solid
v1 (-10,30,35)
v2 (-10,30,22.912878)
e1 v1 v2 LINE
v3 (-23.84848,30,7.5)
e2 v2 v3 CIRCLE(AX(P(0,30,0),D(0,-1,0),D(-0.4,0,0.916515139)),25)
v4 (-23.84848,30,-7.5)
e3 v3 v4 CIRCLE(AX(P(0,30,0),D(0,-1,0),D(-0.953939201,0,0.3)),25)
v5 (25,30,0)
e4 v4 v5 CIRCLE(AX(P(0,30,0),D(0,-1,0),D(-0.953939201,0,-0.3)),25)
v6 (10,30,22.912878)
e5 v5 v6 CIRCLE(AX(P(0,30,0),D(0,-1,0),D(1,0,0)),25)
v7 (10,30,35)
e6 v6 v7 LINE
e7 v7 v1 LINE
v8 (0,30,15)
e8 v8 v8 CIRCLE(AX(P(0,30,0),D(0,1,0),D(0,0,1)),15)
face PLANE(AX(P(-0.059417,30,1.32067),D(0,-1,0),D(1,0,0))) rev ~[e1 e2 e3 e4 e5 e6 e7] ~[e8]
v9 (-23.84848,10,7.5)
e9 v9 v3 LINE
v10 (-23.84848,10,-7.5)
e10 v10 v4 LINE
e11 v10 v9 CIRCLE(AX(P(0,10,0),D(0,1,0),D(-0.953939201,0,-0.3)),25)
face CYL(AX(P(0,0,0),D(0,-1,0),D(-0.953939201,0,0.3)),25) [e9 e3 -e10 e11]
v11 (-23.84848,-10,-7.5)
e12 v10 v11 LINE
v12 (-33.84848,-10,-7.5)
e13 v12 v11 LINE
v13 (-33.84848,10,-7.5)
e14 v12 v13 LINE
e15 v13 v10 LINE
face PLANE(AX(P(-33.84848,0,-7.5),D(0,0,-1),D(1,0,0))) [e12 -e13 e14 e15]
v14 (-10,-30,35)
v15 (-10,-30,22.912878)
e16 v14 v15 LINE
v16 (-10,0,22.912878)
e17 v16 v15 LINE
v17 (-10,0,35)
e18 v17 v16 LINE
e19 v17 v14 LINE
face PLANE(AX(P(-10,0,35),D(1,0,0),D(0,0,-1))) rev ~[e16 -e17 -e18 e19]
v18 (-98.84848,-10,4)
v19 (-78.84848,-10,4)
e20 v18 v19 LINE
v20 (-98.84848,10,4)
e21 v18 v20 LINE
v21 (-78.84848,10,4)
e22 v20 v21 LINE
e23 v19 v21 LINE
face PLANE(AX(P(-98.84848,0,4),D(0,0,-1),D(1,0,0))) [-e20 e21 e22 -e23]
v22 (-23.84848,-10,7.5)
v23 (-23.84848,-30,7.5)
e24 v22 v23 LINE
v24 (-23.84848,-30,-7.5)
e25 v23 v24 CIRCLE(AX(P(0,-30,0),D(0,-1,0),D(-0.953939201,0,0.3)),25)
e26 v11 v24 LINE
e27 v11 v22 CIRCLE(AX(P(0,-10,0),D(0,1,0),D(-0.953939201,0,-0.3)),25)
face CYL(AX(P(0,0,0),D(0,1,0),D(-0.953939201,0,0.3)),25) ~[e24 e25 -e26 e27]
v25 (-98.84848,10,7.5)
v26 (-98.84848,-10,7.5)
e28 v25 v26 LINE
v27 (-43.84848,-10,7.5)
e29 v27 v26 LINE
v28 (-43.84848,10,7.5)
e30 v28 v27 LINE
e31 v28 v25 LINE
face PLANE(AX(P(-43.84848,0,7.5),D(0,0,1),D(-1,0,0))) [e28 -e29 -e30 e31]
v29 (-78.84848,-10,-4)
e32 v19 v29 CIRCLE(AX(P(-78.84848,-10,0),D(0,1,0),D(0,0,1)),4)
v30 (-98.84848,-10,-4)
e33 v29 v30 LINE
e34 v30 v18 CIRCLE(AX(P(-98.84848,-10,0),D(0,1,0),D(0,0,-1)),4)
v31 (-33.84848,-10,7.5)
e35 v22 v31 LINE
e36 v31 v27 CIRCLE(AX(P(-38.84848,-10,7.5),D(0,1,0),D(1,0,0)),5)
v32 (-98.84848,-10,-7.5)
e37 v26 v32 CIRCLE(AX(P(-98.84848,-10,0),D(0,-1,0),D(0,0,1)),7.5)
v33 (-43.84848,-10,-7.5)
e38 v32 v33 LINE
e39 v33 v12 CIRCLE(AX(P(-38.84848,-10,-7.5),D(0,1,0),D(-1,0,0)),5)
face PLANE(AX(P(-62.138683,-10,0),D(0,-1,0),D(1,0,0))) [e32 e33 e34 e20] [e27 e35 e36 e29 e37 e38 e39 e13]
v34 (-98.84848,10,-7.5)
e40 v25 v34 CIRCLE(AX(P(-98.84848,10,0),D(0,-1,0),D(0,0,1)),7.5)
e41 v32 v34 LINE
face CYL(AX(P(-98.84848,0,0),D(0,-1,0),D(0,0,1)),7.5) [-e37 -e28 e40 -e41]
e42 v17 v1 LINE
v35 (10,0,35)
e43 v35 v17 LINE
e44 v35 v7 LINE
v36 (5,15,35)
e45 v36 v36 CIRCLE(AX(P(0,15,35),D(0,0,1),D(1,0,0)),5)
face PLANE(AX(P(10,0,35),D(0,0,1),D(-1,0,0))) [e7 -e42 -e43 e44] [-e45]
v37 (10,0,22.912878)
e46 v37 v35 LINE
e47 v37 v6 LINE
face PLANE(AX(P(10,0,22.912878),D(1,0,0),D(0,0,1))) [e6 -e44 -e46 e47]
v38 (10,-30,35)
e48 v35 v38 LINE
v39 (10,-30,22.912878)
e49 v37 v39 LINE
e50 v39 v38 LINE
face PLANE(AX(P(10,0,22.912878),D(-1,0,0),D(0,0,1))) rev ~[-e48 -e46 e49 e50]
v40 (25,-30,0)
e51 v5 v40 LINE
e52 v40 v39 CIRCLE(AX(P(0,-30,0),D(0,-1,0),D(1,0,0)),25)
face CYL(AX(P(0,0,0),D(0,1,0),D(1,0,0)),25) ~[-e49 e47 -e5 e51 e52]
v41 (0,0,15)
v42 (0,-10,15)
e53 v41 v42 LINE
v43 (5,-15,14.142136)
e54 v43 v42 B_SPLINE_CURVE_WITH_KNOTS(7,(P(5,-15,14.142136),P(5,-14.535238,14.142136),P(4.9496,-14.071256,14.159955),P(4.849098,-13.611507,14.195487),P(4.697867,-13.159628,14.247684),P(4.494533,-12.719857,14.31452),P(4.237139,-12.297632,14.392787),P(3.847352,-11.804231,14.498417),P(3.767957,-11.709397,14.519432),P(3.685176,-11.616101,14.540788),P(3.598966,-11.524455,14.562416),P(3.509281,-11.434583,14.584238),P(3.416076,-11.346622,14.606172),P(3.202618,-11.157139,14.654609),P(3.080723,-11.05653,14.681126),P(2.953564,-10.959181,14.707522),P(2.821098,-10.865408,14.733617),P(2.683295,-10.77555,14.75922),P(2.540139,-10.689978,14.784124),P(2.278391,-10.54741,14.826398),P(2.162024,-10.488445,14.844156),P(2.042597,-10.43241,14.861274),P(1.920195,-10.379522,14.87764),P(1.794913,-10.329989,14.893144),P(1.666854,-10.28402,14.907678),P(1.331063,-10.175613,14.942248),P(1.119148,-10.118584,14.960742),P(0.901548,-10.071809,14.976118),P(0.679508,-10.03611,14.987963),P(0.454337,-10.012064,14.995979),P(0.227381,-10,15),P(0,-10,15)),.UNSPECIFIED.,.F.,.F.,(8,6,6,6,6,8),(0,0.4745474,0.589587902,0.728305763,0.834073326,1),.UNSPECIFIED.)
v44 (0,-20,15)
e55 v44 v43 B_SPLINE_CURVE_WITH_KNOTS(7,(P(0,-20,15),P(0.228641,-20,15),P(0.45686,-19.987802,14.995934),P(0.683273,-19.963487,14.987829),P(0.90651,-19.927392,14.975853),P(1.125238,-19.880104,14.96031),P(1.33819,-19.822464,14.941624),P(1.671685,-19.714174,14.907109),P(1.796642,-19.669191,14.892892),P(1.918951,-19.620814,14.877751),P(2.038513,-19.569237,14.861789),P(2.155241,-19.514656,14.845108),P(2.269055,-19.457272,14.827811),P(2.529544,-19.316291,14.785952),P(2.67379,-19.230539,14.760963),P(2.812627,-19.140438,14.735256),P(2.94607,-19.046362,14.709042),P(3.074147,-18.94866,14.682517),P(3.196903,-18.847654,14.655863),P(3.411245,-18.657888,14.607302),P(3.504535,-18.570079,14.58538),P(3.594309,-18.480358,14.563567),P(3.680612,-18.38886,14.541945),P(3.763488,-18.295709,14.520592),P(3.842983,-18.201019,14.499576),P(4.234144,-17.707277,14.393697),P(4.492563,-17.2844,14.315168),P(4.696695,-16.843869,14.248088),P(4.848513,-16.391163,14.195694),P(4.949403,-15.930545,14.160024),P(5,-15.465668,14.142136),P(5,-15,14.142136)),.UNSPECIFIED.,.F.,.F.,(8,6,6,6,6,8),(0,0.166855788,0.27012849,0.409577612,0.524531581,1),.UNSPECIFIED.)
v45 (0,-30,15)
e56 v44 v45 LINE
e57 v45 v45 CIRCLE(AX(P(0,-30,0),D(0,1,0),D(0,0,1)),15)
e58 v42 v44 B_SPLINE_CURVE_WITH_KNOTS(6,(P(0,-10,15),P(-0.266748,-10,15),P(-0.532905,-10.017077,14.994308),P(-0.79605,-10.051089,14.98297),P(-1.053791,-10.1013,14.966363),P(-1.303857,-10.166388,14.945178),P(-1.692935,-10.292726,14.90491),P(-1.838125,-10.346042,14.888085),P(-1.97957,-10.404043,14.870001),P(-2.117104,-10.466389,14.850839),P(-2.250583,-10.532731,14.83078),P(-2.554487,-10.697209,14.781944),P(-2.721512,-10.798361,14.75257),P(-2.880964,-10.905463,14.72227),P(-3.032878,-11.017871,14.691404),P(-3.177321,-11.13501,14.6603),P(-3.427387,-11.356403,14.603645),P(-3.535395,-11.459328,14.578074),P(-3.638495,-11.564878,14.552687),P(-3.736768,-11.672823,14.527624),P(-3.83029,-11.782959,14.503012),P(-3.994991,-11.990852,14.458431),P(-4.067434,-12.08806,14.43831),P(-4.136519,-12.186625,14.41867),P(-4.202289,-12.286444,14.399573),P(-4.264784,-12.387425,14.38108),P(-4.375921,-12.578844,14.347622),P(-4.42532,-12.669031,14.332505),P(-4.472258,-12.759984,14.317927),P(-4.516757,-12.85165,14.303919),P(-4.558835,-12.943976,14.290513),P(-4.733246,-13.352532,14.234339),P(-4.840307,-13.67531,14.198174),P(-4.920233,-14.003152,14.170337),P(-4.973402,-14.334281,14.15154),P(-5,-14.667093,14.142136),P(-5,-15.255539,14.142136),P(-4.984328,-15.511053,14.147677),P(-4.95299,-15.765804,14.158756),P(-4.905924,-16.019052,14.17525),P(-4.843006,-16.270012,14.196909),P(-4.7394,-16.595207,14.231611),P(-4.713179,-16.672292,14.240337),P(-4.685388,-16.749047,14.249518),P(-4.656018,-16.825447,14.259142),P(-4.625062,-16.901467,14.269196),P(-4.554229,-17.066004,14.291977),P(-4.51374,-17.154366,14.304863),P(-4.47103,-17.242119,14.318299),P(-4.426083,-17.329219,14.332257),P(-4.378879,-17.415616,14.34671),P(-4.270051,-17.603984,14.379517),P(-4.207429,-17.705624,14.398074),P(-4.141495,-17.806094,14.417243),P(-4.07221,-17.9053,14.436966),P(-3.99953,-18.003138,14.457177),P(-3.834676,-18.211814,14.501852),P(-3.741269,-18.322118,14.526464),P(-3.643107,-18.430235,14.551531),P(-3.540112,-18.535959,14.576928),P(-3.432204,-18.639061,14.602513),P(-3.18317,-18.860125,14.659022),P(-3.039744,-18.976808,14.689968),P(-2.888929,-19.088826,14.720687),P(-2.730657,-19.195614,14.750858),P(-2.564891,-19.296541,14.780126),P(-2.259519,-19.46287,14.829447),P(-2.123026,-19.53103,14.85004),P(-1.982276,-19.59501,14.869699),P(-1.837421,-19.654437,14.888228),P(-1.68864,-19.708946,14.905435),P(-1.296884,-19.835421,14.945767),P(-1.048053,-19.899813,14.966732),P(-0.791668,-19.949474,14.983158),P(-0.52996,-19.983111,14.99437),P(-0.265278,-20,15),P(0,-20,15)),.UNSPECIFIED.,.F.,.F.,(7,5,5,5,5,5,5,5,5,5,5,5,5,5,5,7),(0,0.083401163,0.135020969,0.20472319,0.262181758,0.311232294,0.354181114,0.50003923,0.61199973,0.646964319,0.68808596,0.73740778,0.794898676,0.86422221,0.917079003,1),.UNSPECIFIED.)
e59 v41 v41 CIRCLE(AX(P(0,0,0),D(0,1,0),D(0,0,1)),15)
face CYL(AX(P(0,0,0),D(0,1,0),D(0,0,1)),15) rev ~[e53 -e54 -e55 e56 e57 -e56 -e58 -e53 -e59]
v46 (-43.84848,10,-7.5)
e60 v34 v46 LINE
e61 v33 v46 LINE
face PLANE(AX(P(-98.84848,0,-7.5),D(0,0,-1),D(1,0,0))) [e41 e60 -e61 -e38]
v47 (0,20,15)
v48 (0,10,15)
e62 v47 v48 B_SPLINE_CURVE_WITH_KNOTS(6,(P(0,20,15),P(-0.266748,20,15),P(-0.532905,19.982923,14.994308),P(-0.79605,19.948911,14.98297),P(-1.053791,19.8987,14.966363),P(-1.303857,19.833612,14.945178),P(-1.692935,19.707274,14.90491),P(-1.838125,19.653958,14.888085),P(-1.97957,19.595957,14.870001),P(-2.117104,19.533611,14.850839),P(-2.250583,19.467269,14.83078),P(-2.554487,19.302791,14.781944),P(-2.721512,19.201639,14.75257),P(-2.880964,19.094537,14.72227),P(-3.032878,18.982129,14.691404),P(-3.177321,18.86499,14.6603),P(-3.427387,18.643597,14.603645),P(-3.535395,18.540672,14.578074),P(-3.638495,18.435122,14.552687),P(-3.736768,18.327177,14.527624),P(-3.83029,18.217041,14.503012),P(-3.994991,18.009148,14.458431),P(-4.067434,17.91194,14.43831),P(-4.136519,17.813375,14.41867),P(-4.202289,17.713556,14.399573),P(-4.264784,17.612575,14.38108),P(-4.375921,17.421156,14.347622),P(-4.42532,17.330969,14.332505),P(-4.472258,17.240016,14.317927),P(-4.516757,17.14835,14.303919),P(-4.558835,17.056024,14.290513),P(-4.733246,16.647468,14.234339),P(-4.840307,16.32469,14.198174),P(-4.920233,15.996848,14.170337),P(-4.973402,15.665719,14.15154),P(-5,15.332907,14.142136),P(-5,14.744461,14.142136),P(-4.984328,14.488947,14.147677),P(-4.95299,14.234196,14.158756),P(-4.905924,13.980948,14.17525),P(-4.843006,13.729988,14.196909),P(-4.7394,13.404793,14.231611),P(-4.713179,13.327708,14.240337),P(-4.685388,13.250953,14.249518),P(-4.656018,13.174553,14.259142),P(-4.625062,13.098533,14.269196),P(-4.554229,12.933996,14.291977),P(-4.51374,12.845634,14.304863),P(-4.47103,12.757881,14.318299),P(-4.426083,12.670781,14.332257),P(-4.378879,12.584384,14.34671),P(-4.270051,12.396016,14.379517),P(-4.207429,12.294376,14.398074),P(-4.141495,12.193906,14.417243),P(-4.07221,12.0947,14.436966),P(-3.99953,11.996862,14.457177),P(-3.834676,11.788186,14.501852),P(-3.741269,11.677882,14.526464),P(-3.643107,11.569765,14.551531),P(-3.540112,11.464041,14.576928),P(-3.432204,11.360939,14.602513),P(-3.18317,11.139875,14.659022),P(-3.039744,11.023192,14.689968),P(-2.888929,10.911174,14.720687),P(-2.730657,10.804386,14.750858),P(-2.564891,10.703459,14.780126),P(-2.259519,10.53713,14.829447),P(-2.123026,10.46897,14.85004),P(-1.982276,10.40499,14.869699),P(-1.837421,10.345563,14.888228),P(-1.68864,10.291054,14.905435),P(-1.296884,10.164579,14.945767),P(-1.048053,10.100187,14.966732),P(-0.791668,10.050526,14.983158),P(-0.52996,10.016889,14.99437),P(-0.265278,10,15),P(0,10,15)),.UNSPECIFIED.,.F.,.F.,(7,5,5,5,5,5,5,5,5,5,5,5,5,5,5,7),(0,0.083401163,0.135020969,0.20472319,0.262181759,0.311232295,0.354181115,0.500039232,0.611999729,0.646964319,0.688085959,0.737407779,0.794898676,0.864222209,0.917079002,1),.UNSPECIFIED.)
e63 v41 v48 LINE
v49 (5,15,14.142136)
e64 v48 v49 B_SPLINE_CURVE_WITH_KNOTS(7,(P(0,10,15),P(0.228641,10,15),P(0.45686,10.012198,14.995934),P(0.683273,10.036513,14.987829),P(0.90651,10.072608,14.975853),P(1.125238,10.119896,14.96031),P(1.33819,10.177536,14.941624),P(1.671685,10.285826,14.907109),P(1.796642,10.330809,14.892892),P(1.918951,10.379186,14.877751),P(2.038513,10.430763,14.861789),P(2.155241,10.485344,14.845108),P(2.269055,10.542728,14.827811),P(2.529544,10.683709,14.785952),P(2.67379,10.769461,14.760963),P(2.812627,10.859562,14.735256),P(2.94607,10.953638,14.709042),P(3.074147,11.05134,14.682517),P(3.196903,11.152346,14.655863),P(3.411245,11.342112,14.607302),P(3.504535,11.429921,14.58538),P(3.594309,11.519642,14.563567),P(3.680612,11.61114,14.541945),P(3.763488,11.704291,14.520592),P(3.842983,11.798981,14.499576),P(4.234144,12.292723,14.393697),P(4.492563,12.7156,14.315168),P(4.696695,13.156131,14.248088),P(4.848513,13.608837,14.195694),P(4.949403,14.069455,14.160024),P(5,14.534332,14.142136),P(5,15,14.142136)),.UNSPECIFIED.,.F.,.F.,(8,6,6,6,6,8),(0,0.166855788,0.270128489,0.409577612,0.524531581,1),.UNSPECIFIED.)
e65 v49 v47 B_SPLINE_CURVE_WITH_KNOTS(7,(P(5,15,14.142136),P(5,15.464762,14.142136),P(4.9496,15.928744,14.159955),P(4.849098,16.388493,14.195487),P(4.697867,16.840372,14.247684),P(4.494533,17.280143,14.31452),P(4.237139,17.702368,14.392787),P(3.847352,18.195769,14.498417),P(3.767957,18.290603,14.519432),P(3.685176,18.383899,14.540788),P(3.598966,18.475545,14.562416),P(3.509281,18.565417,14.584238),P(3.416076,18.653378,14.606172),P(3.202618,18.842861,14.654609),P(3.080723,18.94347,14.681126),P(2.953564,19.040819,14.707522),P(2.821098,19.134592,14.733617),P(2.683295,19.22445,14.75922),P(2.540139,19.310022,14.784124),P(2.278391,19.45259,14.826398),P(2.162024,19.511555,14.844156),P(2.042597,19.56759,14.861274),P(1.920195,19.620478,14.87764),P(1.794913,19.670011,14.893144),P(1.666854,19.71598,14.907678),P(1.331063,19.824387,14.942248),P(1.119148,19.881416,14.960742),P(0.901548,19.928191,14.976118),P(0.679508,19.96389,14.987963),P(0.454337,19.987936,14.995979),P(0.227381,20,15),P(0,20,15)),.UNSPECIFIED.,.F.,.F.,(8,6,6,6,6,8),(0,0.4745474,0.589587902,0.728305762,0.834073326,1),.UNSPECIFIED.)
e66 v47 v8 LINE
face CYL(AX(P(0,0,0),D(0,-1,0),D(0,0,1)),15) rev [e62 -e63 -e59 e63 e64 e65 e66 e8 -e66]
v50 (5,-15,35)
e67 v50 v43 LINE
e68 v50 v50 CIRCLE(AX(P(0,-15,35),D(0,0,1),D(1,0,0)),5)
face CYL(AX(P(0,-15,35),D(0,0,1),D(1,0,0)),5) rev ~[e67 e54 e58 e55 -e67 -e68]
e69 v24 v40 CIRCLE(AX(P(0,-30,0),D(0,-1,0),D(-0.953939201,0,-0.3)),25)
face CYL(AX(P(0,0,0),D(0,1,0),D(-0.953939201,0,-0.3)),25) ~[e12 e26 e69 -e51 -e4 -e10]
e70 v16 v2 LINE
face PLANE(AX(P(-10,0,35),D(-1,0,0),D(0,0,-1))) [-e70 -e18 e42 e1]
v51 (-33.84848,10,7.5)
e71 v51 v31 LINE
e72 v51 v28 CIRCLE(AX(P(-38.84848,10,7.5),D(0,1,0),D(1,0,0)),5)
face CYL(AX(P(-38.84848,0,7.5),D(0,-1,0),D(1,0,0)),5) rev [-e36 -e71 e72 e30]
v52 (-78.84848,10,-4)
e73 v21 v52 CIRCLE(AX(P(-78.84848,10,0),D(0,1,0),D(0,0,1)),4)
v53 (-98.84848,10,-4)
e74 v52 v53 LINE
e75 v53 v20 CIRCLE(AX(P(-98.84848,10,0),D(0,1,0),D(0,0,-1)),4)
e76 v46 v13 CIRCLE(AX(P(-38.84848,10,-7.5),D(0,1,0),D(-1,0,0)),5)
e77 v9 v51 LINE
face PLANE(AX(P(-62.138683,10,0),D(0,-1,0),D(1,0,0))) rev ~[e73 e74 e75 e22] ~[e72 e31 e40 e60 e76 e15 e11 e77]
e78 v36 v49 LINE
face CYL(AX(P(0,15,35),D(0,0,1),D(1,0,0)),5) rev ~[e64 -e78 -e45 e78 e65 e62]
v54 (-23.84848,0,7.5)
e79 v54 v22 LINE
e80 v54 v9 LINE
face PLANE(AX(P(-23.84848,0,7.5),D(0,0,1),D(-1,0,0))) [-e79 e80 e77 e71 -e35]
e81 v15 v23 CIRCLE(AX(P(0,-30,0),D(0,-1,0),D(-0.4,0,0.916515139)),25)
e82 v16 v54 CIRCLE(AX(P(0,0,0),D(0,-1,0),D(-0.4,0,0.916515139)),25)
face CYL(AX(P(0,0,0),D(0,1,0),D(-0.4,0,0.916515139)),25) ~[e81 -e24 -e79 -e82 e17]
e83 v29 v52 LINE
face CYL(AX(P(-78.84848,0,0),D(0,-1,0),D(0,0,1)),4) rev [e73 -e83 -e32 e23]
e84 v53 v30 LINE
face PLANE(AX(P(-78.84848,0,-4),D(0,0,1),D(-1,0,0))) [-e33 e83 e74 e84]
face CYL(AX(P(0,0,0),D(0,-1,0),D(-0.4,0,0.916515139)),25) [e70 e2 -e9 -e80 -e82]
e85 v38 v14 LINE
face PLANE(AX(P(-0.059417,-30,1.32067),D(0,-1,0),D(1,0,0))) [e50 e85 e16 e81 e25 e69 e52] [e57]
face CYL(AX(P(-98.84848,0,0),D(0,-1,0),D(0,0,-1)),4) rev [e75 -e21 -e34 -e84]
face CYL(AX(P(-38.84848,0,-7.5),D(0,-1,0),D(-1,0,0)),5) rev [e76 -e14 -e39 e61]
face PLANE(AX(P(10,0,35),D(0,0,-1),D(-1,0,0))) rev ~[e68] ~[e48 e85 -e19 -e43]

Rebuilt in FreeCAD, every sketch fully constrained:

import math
import FreeCAD as App
import Part
import Sketcher

doc = App.newDocument("Part")
body = doc.addObject("PartDesign::Body", "Body")

sketch1 = body.newObject("Sketcher::SketchObject", "Sketch")
sketch1.AttachmentSupport = (doc.getObject("XZ_Plane"), [""])
sketch1.MapMode = "FlatFace"
sketch1.addGeometry([
    Part.ArcOfCircle(Part.Circle(App.Vector(0, 0, 0), App.Vector(0, 0, 1), 25), math.radians(0), math.radians(66)),
    Part.LineSegment(App.Vector(10, 23, 0), App.Vector(10, 35, 0)),
    Part.LineSegment(App.Vector(10, 35, 0), App.Vector(-10, 35, 0)),
    Part.LineSegment(App.Vector(-10, 35, 0), App.Vector(-10, 23, 0)),
    Part.ArcOfCircle(Part.Circle(App.Vector(0, 0, 0), App.Vector(0, 0, 1), 25), math.radians(114), math.radians(163)),
    Part.ArcOfCircle(Part.Circle(App.Vector(0, 0, 0), App.Vector(0, 0, 1), 25), math.radians(163), math.radians(197)),
    Part.ArcOfCircle(Part.Circle(App.Vector(0, 0, 0), App.Vector(0, 0, 1), 25), math.radians(-163), math.radians(0)),
    Part.Circle(App.Vector(0, 0, 0), App.Vector(0, 0, 1), 15),
], False)
sketch1.addConstraint([
    Sketcher.Constraint("Coincident", 0, 2, 1, 1),
    Sketcher.Constraint("Coincident", 1, 2, 2, 1),
    Sketcher.Constraint("Coincident", 2, 2, 3, 1),
    Sketcher.Constraint("Coincident", 3, 2, 4, 1),
    Sketcher.Constraint("Tangent", 4, 2, 5, 1),
    Sketcher.Constraint("Tangent", 5, 2, 6, 1),
    Sketcher.Constraint("Tangent", 6, 2, 0, 1),
    Sketcher.Constraint("Vertical", 1),
    Sketcher.Constraint("Horizontal", 2),
    Sketcher.Constraint("Vertical", 3),
    Sketcher.Constraint("Coincident", 0, 3, -1, 1),
    Sketcher.Constraint("Coincident", 4, 3, -1, 1),
    Sketcher.Constraint("Coincident", 7, 3, -1, 1),
    Sketcher.Constraint("Equal", 0, 4),
    Sketcher.Constraint("PointOnObject", 6, 2, -1),
    Sketcher.Constraint("Horizontal", 0, 2, 3, 2),
    Sketcher.Constraint("Vertical", 4, 2, 5, 2),
    Sketcher.Constraint("Diameter", 7, 30.0),
    Sketcher.Constraint("Radius", 0, 25.0),
    Sketcher.Constraint("DistanceX", 2, 2, 2, 1, 20.0),
    Sketcher.Constraint("DistanceY", -1, 1, 1, 2, 35.0),
    Sketcher.Constraint("DistanceY", 5, 2, 4, 2, 15.0),
])
pad1 = body.newObject("PartDesign::Pad", "Pad")
pad1.Profile = sketch1
pad1.Length = 60
pad1.Midplane = True

sketch2 = body.newObject("Sketcher::SketchObject", "Sketch001")
sketch2.AttachmentSupport = (doc.getObject("XZ_Plane"), [""])
sketch2.MapMode = "FlatFace"
sketch2.addGeometry([
    Part.ArcOfCircle(Part.Circle(App.Vector(0, 0, 0), App.Vector(0, 0, 1), 25), math.radians(163), math.radians(197)),
    Part.LineSegment(App.Vector(-23.8, 7.5, 0), App.Vector(-33.8, 7.5, 0)),
    Part.ArcOfCircle(Part.Circle(App.Vector(-38.8, 7.5, 0), App.Vector(0, 0, 1), 5), math.radians(180), math.radians(360)),
    Part.LineSegment(App.Vector(-43.8, 7.5, 0), App.Vector(-98.8, 7.5, 0)),
    Part.ArcOfCircle(Part.Circle(App.Vector(-98.8, 0, 0), App.Vector(0, 0, 1), 7.5), math.radians(90), math.radians(270)),
    Part.LineSegment(App.Vector(-98.8, -7.5, 0), App.Vector(-43.8, -7.5, 0)),
    Part.ArcOfCircle(Part.Circle(App.Vector(-38.8, -7.5, 0), App.Vector(0, 0, 1), 5), math.radians(0), math.radians(180)),
    Part.LineSegment(App.Vector(-33.8, -7.5, 0), App.Vector(-23.8, -7.5, 0)),
    Part.LineSegment(App.Vector(-78.8, -4, 0), App.Vector(-98.8, -4, 0)),
    Part.ArcOfCircle(Part.Circle(App.Vector(-98.8, 0, 0), App.Vector(0, 0, 1), 4), math.radians(90), math.radians(270)),
    Part.LineSegment(App.Vector(-98.8, 4, 0), App.Vector(-78.8, 4, 0)),
    Part.ArcOfCircle(Part.Circle(App.Vector(-78.8, 0, 0), App.Vector(0, 0, 1), 4), math.radians(-90), math.radians(90)),
], False)
sketch2.addConstraint([
    Sketcher.Constraint("Coincident", 0, 1, 1, 1),
    Sketcher.Constraint("Coincident", 1, 2, 2, 2),
    Sketcher.Constraint("Coincident", 2, 1, 3, 1),
    Sketcher.Constraint("Tangent", 3, 2, 4, 1),
    Sketcher.Constraint("Tangent", 4, 2, 5, 1),
    Sketcher.Constraint("Coincident", 5, 2, 6, 2),
    Sketcher.Constraint("Coincident", 6, 1, 7, 1),
    Sketcher.Constraint("Coincident", 7, 2, 0, 2),
    Sketcher.Constraint("Tangent", 8, 2, 9, 2),
    Sketcher.Constraint("Tangent", 9, 1, 10, 1),
    Sketcher.Constraint("Tangent", 10, 2, 11, 2),
    Sketcher.Constraint("Tangent", 11, 1, 8, 1),
    Sketcher.Constraint("Horizontal", 1),
    Sketcher.Constraint("Horizontal", 3),
    Sketcher.Constraint("Horizontal", 5),
    Sketcher.Constraint("Horizontal", 7),
    Sketcher.Constraint("Horizontal", 8),
    Sketcher.Constraint("Horizontal", 10),
    Sketcher.Constraint("Coincident", 0, 3, -1, 1),
    Sketcher.Constraint("Coincident", 9, 3, 4, 3),
    Sketcher.Constraint("Equal", 2, 6),
    Sketcher.Constraint("Symmetric", 2, 3, 6, 3, -1),
    Sketcher.Constraint("PointOnObject", 4, 3, -1),
    Sketcher.Constraint("Horizontal", 2, 3, 0, 1),
    Sketcher.Constraint("Horizontal", 1, 2, 2, 1),
    Sketcher.Constraint("Horizontal", 5, 2, 6, 1),
    Sketcher.Constraint("Radius", 0, 25.0),
    Sketcher.Constraint("Radius", 2, 5.0),
    Sketcher.Constraint("Radius", 9, 4.0),
    Sketcher.Constraint("Radius", 4, 7.5),
    Sketcher.Constraint("DistanceX", 1, 2, 1, 1, 10.0),
    Sketcher.Constraint("DistanceX", 3, 2, 3, 1, 55.0),
    Sketcher.Constraint("DistanceX", 8, 2, 8, 1, 20.0),
])
pad2 = body.newObject("PartDesign::Pad", "Pad001")
pad2.Profile = sketch2
pad2.Length = 20
pad2.Midplane = True

sketch3 = body.newObject("Sketcher::SketchObject", "Sketch002")
sketch3.AttachmentSupport = (doc.getObject("XY_Plane"), [""])
sketch3.MapMode = "FlatFace"
sketch3.AttachmentOffset = App.Placement(App.Vector(0, 0, 35), App.Rotation())
sketch3.addGeometry([
    Part.Circle(App.Vector(0, 15, 0), App.Vector(0, 0, 1), 5),
    Part.Circle(App.Vector(0, -15, 0), App.Vector(0, 0, 1), 5),
], False)
sketch3.addConstraint([
    Sketcher.Constraint("Equal", 0, 1),
    Sketcher.Constraint("Symmetric", 0, 3, 1, 3, -1, 1),
    Sketcher.Constraint("PointOnObject", 0, 3, -2),
    Sketcher.Constraint("Diameter", 0, 10.0),
    Sketcher.Constraint("DistanceY", -1, 1, 0, 3, 15.0),
])
pocket1 = body.newObject("PartDesign::Pocket", "Pocket")
pocket1.Profile = sketch3
pocket1.Length = 20.858864

doc.recompute()
